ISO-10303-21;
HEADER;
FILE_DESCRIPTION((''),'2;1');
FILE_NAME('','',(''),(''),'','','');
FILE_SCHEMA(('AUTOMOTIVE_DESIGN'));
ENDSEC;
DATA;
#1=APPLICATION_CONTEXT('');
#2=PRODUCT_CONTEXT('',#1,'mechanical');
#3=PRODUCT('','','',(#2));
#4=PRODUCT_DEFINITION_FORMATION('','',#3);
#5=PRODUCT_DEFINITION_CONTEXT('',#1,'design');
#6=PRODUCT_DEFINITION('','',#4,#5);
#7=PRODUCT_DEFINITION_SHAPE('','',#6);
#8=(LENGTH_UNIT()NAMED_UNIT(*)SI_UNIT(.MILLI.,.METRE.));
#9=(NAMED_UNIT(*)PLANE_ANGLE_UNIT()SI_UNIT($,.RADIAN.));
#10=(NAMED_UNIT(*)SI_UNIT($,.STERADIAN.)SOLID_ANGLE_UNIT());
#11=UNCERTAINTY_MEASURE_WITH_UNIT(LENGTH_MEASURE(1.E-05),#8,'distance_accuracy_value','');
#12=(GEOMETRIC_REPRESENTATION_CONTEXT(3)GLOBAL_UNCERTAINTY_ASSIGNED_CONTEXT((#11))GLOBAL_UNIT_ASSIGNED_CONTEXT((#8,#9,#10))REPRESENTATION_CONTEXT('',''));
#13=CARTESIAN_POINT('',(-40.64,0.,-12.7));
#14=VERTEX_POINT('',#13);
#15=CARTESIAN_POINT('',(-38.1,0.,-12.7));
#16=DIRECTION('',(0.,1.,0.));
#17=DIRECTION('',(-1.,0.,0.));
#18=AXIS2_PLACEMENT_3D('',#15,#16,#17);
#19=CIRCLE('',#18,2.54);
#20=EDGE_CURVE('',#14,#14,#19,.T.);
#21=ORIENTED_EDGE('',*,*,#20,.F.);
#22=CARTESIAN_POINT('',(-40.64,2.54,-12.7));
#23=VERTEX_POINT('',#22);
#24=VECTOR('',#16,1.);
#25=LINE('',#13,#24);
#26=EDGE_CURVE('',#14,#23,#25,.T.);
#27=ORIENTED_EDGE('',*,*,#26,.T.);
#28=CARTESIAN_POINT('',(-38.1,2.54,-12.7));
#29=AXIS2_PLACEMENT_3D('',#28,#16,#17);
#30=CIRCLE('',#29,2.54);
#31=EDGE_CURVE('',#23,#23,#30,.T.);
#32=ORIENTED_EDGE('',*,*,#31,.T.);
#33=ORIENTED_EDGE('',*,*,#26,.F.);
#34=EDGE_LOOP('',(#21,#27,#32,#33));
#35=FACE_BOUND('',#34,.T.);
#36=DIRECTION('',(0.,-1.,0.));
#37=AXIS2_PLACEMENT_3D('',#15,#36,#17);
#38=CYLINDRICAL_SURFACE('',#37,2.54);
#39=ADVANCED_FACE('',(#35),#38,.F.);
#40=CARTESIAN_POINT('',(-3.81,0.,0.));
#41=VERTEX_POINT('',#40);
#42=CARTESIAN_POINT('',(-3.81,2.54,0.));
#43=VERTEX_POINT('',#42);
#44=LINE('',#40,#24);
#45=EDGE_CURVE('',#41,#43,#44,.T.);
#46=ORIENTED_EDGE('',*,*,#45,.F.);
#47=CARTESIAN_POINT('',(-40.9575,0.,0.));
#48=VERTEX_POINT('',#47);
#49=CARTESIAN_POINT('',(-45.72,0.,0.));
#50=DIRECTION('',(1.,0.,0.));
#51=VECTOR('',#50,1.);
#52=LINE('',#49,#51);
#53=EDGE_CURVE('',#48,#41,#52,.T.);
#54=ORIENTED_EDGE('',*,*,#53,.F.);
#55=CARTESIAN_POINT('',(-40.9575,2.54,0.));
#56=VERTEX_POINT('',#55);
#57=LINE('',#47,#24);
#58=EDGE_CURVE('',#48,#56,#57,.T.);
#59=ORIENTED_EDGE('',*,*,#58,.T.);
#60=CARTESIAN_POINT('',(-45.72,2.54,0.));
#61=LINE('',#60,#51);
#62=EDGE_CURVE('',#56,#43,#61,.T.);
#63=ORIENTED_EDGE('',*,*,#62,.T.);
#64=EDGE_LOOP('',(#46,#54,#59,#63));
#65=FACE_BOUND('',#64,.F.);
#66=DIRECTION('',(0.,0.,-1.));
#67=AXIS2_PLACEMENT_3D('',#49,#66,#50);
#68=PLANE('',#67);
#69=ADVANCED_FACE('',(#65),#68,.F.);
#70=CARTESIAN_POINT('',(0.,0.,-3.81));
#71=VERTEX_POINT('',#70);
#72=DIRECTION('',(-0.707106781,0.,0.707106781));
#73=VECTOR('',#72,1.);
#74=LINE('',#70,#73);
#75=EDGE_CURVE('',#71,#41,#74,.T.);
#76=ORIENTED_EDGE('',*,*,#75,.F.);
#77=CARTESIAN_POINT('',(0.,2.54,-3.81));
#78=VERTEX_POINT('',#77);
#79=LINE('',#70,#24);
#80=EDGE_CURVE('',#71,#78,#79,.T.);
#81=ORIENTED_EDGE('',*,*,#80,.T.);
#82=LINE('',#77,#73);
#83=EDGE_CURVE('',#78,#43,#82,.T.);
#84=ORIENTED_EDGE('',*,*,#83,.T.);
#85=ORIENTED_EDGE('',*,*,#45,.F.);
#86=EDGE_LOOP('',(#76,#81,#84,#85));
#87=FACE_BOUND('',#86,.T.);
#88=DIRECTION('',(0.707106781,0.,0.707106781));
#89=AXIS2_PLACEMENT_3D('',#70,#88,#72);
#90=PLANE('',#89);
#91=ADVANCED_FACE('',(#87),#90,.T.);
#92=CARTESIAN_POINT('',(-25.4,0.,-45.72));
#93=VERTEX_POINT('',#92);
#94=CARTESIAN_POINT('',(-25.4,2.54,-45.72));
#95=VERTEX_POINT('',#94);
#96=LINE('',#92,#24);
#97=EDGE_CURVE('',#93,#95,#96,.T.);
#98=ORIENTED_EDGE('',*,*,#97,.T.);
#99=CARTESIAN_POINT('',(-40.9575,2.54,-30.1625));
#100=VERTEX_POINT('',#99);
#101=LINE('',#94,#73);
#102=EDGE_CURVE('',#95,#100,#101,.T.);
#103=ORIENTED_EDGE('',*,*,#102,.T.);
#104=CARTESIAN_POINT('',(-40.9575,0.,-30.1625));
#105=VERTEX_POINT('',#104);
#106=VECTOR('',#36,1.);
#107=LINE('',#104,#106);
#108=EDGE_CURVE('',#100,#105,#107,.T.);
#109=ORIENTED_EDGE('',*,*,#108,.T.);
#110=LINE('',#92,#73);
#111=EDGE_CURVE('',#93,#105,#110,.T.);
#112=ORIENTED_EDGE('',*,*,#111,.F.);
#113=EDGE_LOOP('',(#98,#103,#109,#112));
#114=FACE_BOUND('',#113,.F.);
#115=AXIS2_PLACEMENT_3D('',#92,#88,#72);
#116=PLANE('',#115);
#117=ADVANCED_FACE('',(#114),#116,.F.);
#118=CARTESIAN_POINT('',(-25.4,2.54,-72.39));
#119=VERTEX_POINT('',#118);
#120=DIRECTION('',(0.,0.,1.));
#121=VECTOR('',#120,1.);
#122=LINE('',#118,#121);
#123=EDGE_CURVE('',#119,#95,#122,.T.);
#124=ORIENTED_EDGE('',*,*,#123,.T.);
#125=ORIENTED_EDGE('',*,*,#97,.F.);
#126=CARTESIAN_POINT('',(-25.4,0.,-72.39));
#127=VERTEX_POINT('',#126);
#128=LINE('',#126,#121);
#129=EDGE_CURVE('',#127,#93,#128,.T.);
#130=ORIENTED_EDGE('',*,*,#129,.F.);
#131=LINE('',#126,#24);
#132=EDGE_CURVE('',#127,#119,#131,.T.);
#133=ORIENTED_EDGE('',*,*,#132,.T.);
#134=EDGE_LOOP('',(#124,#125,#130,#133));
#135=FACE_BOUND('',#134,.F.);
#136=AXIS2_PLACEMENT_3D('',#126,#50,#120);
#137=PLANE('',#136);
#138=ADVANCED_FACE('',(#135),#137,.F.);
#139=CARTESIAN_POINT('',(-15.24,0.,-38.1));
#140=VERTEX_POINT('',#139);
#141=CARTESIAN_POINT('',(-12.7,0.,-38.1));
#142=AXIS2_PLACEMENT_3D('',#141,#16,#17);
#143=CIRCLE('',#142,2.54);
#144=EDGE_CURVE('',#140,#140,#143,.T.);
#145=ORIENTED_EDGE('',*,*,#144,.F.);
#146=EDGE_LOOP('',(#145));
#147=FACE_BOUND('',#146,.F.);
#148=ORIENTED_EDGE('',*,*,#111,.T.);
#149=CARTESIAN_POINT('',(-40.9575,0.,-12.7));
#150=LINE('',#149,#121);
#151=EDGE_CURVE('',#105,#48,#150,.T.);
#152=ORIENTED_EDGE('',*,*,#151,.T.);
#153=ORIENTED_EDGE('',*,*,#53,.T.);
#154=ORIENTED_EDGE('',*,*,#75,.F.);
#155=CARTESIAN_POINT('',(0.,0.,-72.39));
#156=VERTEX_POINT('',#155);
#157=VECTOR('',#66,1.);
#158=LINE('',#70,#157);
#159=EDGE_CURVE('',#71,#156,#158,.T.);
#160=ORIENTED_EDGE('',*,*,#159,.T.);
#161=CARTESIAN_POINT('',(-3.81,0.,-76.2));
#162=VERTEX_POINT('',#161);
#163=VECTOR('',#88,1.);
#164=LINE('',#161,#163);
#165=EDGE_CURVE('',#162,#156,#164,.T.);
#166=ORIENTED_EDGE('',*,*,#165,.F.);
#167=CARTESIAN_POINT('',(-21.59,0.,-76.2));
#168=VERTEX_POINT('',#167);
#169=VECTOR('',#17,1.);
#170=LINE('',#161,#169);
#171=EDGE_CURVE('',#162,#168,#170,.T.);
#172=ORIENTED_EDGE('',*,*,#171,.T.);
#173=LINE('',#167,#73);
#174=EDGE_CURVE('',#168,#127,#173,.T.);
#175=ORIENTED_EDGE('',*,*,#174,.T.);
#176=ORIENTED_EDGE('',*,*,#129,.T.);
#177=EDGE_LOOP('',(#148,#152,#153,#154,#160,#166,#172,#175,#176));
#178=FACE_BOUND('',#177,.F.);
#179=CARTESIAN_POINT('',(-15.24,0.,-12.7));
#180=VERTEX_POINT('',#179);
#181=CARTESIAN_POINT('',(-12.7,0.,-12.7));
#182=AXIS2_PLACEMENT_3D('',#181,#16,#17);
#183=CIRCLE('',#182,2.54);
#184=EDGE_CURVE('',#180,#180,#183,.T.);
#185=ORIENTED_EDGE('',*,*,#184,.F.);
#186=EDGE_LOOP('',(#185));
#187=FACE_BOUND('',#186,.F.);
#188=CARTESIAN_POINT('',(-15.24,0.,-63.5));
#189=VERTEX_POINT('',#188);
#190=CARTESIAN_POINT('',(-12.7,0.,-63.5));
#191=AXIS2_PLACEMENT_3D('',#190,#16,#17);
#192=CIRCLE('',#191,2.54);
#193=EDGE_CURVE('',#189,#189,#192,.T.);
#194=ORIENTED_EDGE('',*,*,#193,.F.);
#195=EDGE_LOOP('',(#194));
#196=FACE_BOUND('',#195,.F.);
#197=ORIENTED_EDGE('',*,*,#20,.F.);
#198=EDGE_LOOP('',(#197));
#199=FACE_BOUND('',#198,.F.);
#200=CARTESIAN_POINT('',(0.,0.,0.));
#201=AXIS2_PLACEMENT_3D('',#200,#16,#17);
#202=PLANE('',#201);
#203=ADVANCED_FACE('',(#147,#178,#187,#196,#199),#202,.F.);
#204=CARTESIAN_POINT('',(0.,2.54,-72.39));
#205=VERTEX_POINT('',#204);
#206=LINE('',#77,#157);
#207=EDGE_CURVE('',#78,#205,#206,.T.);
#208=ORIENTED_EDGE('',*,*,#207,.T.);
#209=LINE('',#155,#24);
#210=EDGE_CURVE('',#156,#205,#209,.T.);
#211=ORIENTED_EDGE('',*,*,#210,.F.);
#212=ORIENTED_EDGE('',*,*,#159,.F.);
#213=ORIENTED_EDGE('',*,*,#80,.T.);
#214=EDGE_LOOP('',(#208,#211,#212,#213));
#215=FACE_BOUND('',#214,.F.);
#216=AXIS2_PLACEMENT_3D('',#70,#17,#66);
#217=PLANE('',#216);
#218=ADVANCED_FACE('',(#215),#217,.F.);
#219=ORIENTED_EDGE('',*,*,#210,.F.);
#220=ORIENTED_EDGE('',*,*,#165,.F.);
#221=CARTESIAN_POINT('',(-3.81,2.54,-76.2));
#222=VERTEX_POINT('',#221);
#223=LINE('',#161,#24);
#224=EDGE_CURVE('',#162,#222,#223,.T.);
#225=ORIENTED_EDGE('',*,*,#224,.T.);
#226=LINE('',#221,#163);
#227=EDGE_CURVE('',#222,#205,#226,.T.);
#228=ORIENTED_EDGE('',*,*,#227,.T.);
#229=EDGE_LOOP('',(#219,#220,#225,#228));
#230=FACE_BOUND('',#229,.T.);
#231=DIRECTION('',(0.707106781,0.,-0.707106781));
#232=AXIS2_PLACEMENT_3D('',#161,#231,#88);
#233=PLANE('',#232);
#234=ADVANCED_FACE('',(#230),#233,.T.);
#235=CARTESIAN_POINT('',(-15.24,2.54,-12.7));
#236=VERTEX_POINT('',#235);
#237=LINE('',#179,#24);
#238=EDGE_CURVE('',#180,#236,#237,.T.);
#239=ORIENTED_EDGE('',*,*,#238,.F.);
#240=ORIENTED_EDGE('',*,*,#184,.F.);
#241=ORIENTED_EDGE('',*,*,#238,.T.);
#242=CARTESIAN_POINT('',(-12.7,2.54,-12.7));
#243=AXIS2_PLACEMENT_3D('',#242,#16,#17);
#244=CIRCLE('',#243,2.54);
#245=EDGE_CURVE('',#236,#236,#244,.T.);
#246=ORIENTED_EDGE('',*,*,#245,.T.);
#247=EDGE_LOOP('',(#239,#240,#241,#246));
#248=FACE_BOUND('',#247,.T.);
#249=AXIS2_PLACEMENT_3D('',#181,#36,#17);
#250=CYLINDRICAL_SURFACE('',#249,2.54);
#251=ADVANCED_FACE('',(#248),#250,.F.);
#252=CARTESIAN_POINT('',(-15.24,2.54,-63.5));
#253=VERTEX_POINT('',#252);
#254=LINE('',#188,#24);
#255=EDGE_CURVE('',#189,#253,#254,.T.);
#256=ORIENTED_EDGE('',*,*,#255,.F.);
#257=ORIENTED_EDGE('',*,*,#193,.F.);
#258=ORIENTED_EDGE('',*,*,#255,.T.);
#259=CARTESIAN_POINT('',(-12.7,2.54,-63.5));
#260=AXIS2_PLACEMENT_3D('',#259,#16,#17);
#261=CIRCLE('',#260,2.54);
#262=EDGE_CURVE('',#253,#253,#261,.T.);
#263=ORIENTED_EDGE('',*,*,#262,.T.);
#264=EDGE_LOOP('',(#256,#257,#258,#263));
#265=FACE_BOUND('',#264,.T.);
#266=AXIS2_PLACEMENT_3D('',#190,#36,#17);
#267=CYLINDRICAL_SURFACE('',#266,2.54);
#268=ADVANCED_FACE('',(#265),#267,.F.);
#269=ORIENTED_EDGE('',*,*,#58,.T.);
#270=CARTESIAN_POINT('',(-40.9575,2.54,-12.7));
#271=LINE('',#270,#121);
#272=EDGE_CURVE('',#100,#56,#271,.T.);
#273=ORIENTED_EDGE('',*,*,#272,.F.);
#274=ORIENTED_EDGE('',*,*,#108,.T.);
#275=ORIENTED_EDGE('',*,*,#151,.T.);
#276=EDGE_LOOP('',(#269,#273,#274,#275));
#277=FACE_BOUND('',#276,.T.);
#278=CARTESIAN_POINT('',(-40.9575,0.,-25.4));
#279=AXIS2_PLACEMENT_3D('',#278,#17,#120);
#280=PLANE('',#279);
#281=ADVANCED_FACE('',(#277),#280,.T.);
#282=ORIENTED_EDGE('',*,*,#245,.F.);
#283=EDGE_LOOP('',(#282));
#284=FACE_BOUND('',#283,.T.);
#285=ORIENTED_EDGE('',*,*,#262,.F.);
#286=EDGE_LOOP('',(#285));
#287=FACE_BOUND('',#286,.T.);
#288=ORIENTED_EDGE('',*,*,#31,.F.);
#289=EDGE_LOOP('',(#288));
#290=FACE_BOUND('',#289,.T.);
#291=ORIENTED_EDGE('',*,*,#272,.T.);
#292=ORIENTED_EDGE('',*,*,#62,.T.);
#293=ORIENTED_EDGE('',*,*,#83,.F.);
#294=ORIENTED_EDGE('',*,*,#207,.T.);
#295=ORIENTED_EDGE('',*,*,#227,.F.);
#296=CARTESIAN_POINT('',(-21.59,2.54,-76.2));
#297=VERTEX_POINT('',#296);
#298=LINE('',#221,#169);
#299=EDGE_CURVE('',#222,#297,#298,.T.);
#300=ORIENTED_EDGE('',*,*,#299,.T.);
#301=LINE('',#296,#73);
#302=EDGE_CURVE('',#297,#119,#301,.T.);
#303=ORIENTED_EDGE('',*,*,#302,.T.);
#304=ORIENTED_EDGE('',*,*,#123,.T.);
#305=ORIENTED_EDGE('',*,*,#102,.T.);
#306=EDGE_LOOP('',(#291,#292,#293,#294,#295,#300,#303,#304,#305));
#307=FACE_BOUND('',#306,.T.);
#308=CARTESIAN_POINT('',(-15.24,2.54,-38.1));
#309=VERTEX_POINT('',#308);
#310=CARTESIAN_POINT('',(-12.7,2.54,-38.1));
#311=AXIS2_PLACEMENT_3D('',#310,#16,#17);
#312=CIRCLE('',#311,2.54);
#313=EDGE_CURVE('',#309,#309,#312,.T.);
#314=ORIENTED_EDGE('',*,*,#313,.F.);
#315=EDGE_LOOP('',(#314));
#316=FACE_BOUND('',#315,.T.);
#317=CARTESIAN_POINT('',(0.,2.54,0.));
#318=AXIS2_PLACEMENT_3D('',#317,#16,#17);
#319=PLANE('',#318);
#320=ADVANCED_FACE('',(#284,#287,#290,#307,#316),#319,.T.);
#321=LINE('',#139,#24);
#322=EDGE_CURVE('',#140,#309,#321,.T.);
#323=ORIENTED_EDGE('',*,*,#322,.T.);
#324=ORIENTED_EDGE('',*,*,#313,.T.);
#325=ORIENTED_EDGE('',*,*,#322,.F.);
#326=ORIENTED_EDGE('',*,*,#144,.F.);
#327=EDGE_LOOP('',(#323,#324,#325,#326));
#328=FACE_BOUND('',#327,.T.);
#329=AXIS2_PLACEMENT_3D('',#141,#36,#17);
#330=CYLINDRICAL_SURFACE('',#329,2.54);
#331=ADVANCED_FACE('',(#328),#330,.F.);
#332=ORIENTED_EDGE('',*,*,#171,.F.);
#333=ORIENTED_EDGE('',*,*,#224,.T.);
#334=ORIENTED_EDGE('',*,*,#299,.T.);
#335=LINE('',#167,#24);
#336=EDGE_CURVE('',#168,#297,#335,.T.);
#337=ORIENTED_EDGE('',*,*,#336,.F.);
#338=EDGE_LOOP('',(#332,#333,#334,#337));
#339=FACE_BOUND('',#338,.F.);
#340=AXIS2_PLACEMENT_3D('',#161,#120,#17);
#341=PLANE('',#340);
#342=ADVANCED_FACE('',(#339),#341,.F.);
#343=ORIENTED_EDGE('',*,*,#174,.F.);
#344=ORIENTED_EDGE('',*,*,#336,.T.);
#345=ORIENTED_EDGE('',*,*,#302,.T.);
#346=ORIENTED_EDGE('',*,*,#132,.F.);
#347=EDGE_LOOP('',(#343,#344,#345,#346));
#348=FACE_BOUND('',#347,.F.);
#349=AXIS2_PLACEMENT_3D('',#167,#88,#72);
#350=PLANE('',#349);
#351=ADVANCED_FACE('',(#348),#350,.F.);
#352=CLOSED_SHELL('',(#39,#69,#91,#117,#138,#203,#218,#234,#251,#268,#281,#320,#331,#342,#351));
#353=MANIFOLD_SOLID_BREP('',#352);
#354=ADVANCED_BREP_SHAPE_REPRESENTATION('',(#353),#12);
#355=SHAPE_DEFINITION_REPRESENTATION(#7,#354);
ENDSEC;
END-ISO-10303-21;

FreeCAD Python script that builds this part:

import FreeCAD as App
import Part
import Sketcher

V = App.Vector
Q = App.Units.Quantity


def add_polygon(sketch, points):
    """Adds a closed chain of lines whose ends are joined by coincident constraints."""
    first, n = sketch.GeometryCount, len(points)
    for a, b in zip(points, points[1:] + points[:1]):
        sketch.addGeometry(Part.LineSegment(App.Vector(*a, 0), App.Vector(*b, 0)), False)
    for i in range(n):
        sketch.addConstraint(Sketcher.Constraint("Coincident", first + i, 2, first + (i + 1) % n, 1))

doc = App.newDocument("Part")
body = doc.addObject("PartDesign::Body", "Body")

# Sketch on XZ plane
sketch1 = body.newObject("Sketcher::SketchObject", "Sketch")
sketch1.AttachmentSupport = (doc.getObject("XZ_Plane"), [""])
sketch1.MapMode = "FlatFace"
add_polygon(sketch1, [(-25.4, -72.4), (-25.4, -45.7), (-45.7, -25.4), (-45.7, 0), (-3.8, 0), (0, -3.8), (0, -72.4), (-3.8, -76.2), (-21.6, -76.2)])  # lines 0-8
sketch1.addGeometry(Part.Circle(V(-12.7, -63.5, 0), V(0, 0, 1), 2.5), False)  # 9
sketch1.addGeometry(Part.Circle(V(-12.7, -38.1, 0), V(0, 0, 1), 2.5), False)  # 10
sketch1.addGeometry(Part.Circle(V(-12.7, -12.7, 0), V(0, 0, 1), 2.5), False)  # 11
sketch1.addGeometry(Part.Circle(V(-38.1, -12.7, 0), V(0, 0, 1), 2.5), False)  # 12
sketch1.addConstraint(Sketcher.Constraint("Vertical", 0))
sketch1.addConstraint(Sketcher.Constraint("Vertical", 2))
sketch1.addConstraint(Sketcher.Constraint("Horizontal", 3))
sketch1.addConstraint(Sketcher.Constraint("Vertical", 5))
sketch1.addConstraint(Sketcher.Constraint("Horizontal", 7))
sketch1.addConstraint(Sketcher.Constraint("Equal", 9, 10))
sketch1.addConstraint(Sketcher.Constraint("Equal", 10, 11))
sketch1.addConstraint(Sketcher.Constraint("Equal", 11, 12))
sketch1.addConstraint(Sketcher.Constraint("PointOnObject", 2, 2, -1))
sketch1.addConstraint(Sketcher.Constraint("PointOnObject", 4, 2, -2))
sketch1.addConstraint(Sketcher.Constraint("Parallel", 1, 4))
sketch1.addConstraint(Sketcher.Constraint("Perpendicular", 4, 6))
sketch1.addConstraint(Sketcher.Constraint("Perpendicular", 6, 8))
sketch1.addConstraint(Sketcher.Constraint("Horizontal", 11, 3, 12, 3))
sketch1.addConstraint(Sketcher.Constraint("Horizontal", 5, 2, 8, 2))
sketch1.addConstraint(Sketcher.Constraint("Vertical", 9, 3, 10, 3))
sketch1.addConstraint(Sketcher.Constraint("Vertical", 10, 3, 11, 3))
sketch1.addConstraint(Sketcher.Constraint("Vertical", 3, 2, 6, 2))
sketch1.addConstraint(Sketcher.Constraint("Equal", 4, 6))
sketch1.addConstraint(Sketcher.Constraint("Diameter", 9, Q("0.2 in")))
sketch1.addConstraint(Sketcher.Constraint("DistanceY", 2, 1, 2, 2, Q("1 in")))
sketch1.addConstraint(Sketcher.Constraint("DistanceX", 7, 2, 7, 1, Q("0.7 in")))
sketch1.addConstraint(Sketcher.Constraint("DistanceY", 5, 2, 5, 1, Q("2.7 in")))
sketch1.addConstraint(Sketcher.Constraint("DistanceX", 0, 2, -1, 1, Q("1 in")))
sketch1.addConstraint(Sketcher.Constraint("DistanceY", 9, 3, 10, 3, Q("1 in")))
sketch1.addConstraint(Sketcher.Constraint("DistanceY", 10, 3, 11, 3, Q("1 in")))
sketch1.addConstraint(Sketcher.Constraint("DistanceX", 12, 3, 11, 3, Q("1 in")))
sketch1.addConstraint(Sketcher.Constraint("DistanceX", 3, 1, 3, 2, Q("1.65 in")))
sketch1.addConstraint(Sketcher.Constraint("DistanceX", 9, 3, -1, 1, Q("0.5 in")))
sketch1.addConstraint(Sketcher.Constraint("DistanceY", 9, 3, -1, 1, Q("2.5 in")))
pad1 = body.newObject("PartDesign::Pad", "Pad")
pad1.Profile = sketch1
pad1.Length = Q("0.1 in")
pad1.Reversed = True

# Sketch on YZ plane
sketch2 = body.newObject("Sketcher::SketchObject", "Sketch001")
sketch2.AttachmentSupport = (doc.getObject("YZ_Plane"), [""])
sketch2.MapMode = "FlatFace"
sketch2.AttachmentOffset = App.Placement(V(0, 0, -1.8 * 25.4), App.Rotation())
add_polygon(sketch2, [(-8, -39), (-8, 6), (16, 6), (16, -39)])  # lines 0-3
sketch2.addConstraint(Sketcher.Constraint("Vertical", 0))
sketch2.addConstraint(Sketcher.Constraint("Horizontal", 1))
sketch2.addConstraint(Sketcher.Constraint("Vertical", 2))
sketch2.addConstraint(Sketcher.Constraint("Horizontal", 3))
sketch2.addConstraint(Sketcher.Constraint("DistanceX", 1, 1, 1, 2, 23.9303))
sketch2.addConstraint(Sketcher.Constraint("DistanceY", 0, 1, 0, 2, 45.1768))
sketch2.addConstraint(Sketcher.Constraint("DistanceX", 0, 2, -1, 1, 8.1072))
sketch2.addConstraint(Sketcher.Constraint("DistanceY", -1, 1, 0, 2, 6.262))
pocket1 = body.newObject("PartDesign::Pocket", "Pocket")
pocket1.Profile = sketch2
pocket1.Length = Q("0.1875 in")
pocket1.Reversed = True

doc.recompute()
